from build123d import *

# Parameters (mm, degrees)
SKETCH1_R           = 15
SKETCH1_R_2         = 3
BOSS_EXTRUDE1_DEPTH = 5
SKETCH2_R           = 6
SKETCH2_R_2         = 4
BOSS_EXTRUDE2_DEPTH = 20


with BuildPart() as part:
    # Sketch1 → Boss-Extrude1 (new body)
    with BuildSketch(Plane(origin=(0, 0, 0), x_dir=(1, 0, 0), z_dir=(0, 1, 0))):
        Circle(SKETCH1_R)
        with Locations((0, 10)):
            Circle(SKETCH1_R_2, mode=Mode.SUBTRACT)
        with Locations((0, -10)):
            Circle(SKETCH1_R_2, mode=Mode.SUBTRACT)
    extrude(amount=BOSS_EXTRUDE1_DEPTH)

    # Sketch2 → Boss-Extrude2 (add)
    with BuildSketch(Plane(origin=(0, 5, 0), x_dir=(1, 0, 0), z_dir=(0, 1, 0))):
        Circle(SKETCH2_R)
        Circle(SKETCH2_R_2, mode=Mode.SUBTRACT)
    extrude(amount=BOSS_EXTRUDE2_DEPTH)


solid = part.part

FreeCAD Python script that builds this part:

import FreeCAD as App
import Part
import Sketcher

V = App.Vector
Q = App.Units.Quantity

doc = App.newDocument("Part")
body = doc.addObject("PartDesign::Body", "Body")

sketch1 = doc.addObject("Sketcher::SketchObject", "Sketch")
body.addObject(sketch1)
sketch1.AttachmentSupport = (doc.XZ_Plane, [""])
sketch1.MapMode = "FlatFace"
sketch1.addGeometry([
    Part.Circle(V(0, 0, 0), V(0, 0, 1), 15),
    Part.Circle(V(0, 10, 0), V(0, 0, 1), 3),
    Part.Circle(V(0, -10, 0), V(0, 0, 1), 3),
], False)
sketch1.addConstraint([
    Sketcher.Constraint("Coincident", 0, 3, -1, 1),
    Sketcher.Constraint("Equal", 1, 2),
    Sketcher.Constraint("Symmetric", 1, 3, 2, 3, -1, 1),
    Sketcher.Constraint("PointOnObject", 1, 3, -2),
    Sketcher.Constraint("Diameter", 0, Q("30 mm")),
    Sketcher.Constraint("Diameter", 1, Q("6 mm")),
    Sketcher.Constraint("DistanceY", -1, 1, 1, 3, Q("10 mm")),
])
pad1 = doc.addObject("PartDesign::Pad", "Pad")
body.addObject(pad1)
pad1.Profile = sketch1
pad1.Length = 5
pad1.Reversed = True

sketch2 = doc.addObject("Sketcher::SketchObject", "Sketch001")
body.addObject(sketch2)
sketch2.AttachmentSupport = (doc.XZ_Plane, [""])
sketch2.MapMode = "FlatFace"
sketch2.AttachmentOffset = App.Placement(V(0, 0, -5), App.Rotation())
sketch2.addGeometry([
    Part.Circle(V(0, 0, 0), V(0, 0, 1), 6),
    Part.Circle(V(0, 0, 0), V(0, 0, 1), 4),
], False)
sketch2.addConstraint([
    Sketcher.Constraint("Coincident", 0, 3, -1, 1),
    Sketcher.Constraint("Coincident", 1, 3, -1, 1),
    Sketcher.Constraint("Diameter", 0, Q("12 mm")),
    Sketcher.Constraint("Diameter", 1, Q("8 mm")),
])
pad2 = doc.addObject("PartDesign::Pad", "Pad001")
body.addObject(pad2)
pad2.Profile = sketch2
pad2.Length = 20
pad2.Reversed = True

doc.recompute()
